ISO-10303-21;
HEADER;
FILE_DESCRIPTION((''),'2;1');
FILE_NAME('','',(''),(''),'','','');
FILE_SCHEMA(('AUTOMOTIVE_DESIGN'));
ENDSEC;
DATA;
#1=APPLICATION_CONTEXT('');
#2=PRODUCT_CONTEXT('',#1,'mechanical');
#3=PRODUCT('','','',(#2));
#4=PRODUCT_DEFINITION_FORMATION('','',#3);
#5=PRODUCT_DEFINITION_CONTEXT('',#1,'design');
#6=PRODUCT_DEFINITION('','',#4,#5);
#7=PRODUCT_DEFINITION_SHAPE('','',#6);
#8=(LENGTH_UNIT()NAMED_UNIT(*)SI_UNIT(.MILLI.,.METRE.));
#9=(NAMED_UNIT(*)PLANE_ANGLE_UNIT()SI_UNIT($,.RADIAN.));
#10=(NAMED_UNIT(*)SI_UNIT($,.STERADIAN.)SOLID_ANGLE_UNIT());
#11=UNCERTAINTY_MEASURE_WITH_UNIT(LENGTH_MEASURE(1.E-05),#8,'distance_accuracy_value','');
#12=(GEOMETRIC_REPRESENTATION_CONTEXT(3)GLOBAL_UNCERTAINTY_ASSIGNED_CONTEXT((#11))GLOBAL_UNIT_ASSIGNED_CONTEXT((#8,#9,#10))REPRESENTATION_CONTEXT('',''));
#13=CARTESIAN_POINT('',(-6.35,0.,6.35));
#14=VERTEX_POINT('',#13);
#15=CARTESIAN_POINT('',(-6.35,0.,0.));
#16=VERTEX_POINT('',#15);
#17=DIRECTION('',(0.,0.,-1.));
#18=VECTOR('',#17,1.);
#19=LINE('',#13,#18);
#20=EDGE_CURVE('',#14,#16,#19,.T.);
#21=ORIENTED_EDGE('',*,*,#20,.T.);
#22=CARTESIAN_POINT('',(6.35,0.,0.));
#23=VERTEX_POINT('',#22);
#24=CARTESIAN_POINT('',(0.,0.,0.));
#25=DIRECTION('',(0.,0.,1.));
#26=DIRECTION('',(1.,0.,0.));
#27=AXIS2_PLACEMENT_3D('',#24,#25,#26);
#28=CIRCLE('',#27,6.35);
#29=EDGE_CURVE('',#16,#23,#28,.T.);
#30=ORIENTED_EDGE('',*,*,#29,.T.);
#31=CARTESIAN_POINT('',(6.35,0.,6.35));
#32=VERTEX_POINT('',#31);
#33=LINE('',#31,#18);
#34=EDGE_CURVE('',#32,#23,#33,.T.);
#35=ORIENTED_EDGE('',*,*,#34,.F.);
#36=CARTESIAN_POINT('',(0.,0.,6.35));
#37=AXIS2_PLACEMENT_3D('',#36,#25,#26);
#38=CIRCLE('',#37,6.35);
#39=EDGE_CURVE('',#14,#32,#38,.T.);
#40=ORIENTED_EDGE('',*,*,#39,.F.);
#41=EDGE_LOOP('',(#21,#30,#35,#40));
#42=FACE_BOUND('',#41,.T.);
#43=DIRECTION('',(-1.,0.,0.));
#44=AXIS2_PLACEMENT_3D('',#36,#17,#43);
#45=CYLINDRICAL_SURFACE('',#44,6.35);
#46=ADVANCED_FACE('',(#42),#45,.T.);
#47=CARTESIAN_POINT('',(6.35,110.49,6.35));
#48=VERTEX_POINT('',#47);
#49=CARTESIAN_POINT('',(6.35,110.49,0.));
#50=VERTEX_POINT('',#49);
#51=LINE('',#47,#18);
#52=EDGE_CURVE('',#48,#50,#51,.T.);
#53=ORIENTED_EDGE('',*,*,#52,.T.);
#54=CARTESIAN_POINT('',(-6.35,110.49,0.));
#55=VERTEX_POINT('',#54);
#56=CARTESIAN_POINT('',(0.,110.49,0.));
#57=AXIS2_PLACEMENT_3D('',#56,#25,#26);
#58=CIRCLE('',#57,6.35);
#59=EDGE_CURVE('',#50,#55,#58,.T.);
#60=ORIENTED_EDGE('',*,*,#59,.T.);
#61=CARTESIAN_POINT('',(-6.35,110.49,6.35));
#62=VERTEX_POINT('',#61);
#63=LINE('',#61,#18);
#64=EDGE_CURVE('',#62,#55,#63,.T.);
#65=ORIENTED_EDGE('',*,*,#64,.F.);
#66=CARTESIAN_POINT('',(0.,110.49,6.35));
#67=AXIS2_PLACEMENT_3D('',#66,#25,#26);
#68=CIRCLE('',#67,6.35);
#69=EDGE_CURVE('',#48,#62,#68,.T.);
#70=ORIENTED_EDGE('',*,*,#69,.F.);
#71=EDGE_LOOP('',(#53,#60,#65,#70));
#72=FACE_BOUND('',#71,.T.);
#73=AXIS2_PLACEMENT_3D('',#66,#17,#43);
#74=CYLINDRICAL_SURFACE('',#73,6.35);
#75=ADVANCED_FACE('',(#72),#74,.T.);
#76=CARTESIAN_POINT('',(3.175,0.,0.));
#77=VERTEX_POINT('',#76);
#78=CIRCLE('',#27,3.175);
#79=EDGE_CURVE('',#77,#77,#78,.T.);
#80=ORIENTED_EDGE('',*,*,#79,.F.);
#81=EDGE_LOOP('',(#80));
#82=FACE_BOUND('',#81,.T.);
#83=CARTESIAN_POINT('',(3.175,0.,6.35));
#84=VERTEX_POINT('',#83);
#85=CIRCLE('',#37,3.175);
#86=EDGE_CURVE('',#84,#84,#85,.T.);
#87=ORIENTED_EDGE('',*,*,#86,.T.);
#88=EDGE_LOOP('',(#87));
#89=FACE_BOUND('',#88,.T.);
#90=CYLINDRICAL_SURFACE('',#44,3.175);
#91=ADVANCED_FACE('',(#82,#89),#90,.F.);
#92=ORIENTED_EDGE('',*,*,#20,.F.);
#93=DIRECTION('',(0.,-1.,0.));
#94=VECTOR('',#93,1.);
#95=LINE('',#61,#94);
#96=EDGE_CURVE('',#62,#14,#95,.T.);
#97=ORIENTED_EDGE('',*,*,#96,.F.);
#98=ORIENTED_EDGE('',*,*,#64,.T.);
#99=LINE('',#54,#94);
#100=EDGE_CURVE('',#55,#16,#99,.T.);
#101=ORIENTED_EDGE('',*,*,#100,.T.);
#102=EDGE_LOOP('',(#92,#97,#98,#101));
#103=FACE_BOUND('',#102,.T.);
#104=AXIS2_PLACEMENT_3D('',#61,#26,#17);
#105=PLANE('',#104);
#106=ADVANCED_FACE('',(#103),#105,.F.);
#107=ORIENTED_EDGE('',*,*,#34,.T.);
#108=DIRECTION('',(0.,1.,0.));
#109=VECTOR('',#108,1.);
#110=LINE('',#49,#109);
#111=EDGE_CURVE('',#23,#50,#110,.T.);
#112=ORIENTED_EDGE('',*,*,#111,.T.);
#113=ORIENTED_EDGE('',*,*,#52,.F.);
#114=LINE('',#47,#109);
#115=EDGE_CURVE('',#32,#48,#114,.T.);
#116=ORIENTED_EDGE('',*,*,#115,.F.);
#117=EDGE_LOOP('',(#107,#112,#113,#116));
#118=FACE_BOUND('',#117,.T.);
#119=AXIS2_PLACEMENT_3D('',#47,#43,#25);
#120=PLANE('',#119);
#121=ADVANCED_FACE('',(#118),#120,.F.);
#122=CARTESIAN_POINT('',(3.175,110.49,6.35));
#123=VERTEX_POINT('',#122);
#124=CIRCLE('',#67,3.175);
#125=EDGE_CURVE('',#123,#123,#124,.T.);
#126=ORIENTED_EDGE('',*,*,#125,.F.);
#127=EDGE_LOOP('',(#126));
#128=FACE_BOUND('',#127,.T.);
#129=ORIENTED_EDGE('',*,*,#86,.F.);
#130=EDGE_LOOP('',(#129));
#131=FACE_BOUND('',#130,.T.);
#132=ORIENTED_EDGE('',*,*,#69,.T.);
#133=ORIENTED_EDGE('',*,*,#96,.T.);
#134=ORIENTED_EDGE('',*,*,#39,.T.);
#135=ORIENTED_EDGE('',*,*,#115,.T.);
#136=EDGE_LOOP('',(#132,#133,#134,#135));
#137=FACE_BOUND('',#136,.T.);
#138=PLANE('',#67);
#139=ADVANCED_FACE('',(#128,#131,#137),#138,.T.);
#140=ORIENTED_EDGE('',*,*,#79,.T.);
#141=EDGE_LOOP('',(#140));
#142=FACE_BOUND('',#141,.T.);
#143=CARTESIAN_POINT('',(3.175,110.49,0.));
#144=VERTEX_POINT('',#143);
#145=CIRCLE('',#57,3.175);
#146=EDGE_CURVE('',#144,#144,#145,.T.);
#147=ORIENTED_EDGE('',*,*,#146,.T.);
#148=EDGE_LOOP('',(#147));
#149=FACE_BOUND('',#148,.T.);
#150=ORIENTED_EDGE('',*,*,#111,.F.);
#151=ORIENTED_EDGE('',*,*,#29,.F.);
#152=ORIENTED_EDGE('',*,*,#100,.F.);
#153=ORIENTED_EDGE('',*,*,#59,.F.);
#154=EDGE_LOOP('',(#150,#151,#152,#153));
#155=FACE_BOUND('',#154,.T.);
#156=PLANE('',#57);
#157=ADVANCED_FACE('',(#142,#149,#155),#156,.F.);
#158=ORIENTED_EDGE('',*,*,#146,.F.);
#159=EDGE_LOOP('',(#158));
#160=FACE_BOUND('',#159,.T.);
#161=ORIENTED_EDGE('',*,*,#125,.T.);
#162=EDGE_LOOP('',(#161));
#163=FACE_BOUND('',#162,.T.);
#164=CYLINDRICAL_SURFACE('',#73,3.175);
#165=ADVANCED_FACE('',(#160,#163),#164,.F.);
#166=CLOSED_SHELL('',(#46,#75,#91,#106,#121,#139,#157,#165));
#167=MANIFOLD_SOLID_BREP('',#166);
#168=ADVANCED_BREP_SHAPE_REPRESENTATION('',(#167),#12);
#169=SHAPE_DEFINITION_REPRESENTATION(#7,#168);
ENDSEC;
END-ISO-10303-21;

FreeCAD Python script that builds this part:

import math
import FreeCAD as App
import Part
import Sketcher
from FreeCAD import Vector
Q = App.Units.Quantity

doc = App.newDocument("Part")
body = doc.addObject("PartDesign::Body", "Body")

# Sketch on XY plane
sketch1 = body.newObject("Sketcher::SketchObject", "Sketch")
sketch1.AttachmentSupport = (doc.getObject("XY_Plane"), [""])
sketch1.MapMode = "FlatFace"
sketch1.addGeometry([
    Part.LineSegment(Vector(-6.3, 110.5, 0), Vector(-6.3, 0, 0)),  # 0
    Part.ArcOfCircle(Part.Circle(Vector(0, 0, 0), Vector(0, 0, 1), 6.3), math.radians(180), math.radians(360)),  # 1
    Part.LineSegment(Vector(6.3, 0, 0), Vector(6.3, 110.5, 0)),  # 2
    Part.ArcOfCircle(Part.Circle(Vector(0, 110.5, 0), Vector(0, 0, 1), 6.3), math.radians(0), math.radians(180)),  # 3
    Part.Circle(Vector(0, 0, 0), Vector(0, 0, 1), 3.2),  # 4
    Part.Circle(Vector(0, 110.5, 0), Vector(0, 0, 1), 3.2),  # 5
], False)
sketch1.addConstraint([
    Sketcher.Constraint("Tangent", 0, 2, 1, 1),
    Sketcher.Constraint("Tangent", 1, 2, 2, 1),
    Sketcher.Constraint("Tangent", 2, 2, 3, 1),
    Sketcher.Constraint("Tangent", 3, 2, 0, 1),
    Sketcher.Constraint("Vertical", 0),
    Sketcher.Constraint("Vertical", 2),
    Sketcher.Constraint("Coincident", 1, 3, -1, 1),
    Sketcher.Constraint("Coincident", 4, 3, -1, 1),
    Sketcher.Constraint("Coincident", 5, 3, 3, 3),
    Sketcher.Constraint("Equal", 4, 5),
    Sketcher.Constraint("Diameter", 4, Q("0.25 in")),
    Sketcher.Constraint("Radius", 1, Q("0.25 in")),
    Sketcher.Constraint("DistanceY", 0, 2, 0, 1, Q("4.35 in")),
])
pad1 = body.newObject("PartDesign::Pad", "Pad")
pad1.Profile = sketch1
pad1.Length = Q("0.25 in")

doc.recompute()
